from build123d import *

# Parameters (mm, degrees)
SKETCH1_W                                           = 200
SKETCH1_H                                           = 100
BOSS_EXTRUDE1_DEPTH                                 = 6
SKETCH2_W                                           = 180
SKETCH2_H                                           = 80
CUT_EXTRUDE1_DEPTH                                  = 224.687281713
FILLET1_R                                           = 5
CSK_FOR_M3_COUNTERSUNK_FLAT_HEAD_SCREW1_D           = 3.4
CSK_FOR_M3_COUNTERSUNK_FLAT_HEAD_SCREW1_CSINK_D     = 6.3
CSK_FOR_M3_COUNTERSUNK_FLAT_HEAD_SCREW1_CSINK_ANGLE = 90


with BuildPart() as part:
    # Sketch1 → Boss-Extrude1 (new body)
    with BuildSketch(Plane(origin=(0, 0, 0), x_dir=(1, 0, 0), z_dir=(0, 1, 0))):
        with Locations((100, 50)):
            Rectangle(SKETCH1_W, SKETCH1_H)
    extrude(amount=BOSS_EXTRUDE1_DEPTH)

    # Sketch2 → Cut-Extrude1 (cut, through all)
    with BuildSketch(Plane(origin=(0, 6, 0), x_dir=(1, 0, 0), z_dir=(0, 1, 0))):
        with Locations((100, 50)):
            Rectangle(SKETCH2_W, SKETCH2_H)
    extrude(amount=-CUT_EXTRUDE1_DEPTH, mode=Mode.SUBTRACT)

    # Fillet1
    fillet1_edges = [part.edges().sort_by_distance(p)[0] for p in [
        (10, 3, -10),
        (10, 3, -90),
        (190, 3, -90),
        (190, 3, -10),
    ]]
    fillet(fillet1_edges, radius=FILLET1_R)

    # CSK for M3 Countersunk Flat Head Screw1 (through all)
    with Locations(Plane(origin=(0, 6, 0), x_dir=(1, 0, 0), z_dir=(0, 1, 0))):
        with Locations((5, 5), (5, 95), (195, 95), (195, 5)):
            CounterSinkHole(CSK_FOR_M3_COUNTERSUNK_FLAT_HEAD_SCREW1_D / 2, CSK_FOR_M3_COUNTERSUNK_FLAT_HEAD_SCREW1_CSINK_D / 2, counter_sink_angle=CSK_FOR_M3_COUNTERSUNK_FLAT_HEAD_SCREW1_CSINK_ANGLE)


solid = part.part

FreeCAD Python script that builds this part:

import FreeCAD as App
import Part
import Sketcher

V = App.Vector


def edges_at(feature, points):
    """Names of the edges that pass closest to the given points."""
    edges = feature.Shape.Edges
    near = lambda p: min(range(len(edges)), key=lambda i: edges[i].distToShape(Part.Vertex(*p))[0])
    return sorted({f"Edge{near(p) + 1}" for p in points})

doc = App.newDocument("Part")
body = doc.addObject("PartDesign::Body", "Body")

# Sketch on XZ plane
sketch1 = body.newObject("Sketcher::SketchObject", "Sketch")
sketch1.AttachmentSupport = (doc.getObject("XZ_Plane"), [""])
sketch1.MapMode = "FlatFace"
sketch1.addGeometry([
    Part.LineSegment(V(0, -100, 0), V(0, 0, 0)),
    Part.LineSegment(V(0, 0, 0), V(200, 0, 0)),
    Part.LineSegment(V(200, 0, 0), V(200, -100, 0)),
    Part.LineSegment(V(200, -100, 0), V(0, -100, 0)),
], False)
sketch1.addConstraint([
    Sketcher.Constraint("Coincident", 0, 2, 1, 1),
    Sketcher.Constraint("Coincident", 1, 2, 2, 1),
    Sketcher.Constraint("Coincident", 2, 2, 3, 1),
    Sketcher.Constraint("Coincident", 3, 2, 0, 1),
    Sketcher.Constraint("Vertical", 0),
    Sketcher.Constraint("Horizontal", 1),
    Sketcher.Constraint("Vertical", 2),
    Sketcher.Constraint("Horizontal", 3),
    Sketcher.Constraint("Coincident", 0, 2, -1, 1),
    Sketcher.Constraint("DistanceX", 1, 1, 1, 2, 200.0),
    Sketcher.Constraint("DistanceY", 0, 1, 0, 2, 100.0),
])
pad1 = body.newObject("PartDesign::Pad", "Pad")
pad1.Profile = sketch1
pad1.Length = 6
pad1.Reversed = True

# Sketch on XZ plane
sketch2 = body.newObject("Sketcher::SketchObject", "Sketch001")
sketch2.AttachmentSupport = (doc.getObject("XZ_Plane"), [""])
sketch2.MapMode = "FlatFace"
sketch2.AttachmentOffset = App.Placement(V(0, 0, -6), App.Rotation())
sketch2.addGeometry([
    Part.LineSegment(V(10, -90, 0), V(10, -10, 0)),
    Part.LineSegment(V(10, -10, 0), V(190, -10, 0)),
    Part.LineSegment(V(190, -10, 0), V(190, -90, 0)),
    Part.LineSegment(V(190, -90, 0), V(10, -90, 0)),
], False)
sketch2.addConstraint([
    Sketcher.Constraint("Coincident", 0, 2, 1, 1),
    Sketcher.Constraint("Coincident", 1, 2, 2, 1),
    Sketcher.Constraint("Coincident", 2, 2, 3, 1),
    Sketcher.Constraint("Coincident", 3, 2, 0, 1),
    Sketcher.Constraint("Vertical", 0),
    Sketcher.Constraint("Horizontal", 1),
    Sketcher.Constraint("Vertical", 2),
    Sketcher.Constraint("Horizontal", 3),
    Sketcher.Constraint("DistanceX", 1, 1, 1, 2, 180.0),
    Sketcher.Constraint("DistanceY", 0, 1, 0, 2, 80.0),
    Sketcher.Constraint("DistanceX", -1, 1, 0, 2, 10.0),
    Sketcher.Constraint("DistanceY", 0, 2, -1, 1, 10.0),
])
pocket1 = body.newObject("PartDesign::Pocket", "Pocket")
pocket1.Profile = sketch2
pocket1.Type = "ThroughAll"
pocket1.Reversed = True
doc.recompute()

fillet = body.newObject("PartDesign::Fillet", "Fillet")
fillet.Base = (pocket1, edges_at(pocket1, [
    (10, 3, -10),
    (10, 3, -90),
    (190, 3, -90),
    (190, 3, -10),
]))
fillet.Radius = 5

# Sketch on XZ plane
sketch3 = body.newObject("Sketcher::SketchObject", "Sketch002")
sketch3.AttachmentSupport = (doc.getObject("XZ_Plane"), [""])
sketch3.MapMode = "FlatFace"
sketch3.AttachmentOffset = App.Placement(V(0, 0, -6), App.Rotation())
sketch3.addGeometry([
    Part.Circle(V(5, -5, 0), V(0, 0, 1), 1.7),
    Part.Circle(V(5, -95, 0), V(0, 0, 1), 1.7),
    Part.Circle(V(195, -95, 0), V(0, 0, 1), 1.7),
    Part.Circle(V(195, -5, 0), V(0, 0, 1), 1.7),
], False)
sketch3.addConstraint([
    Sketcher.Constraint("Equal", 0, 1),
    Sketcher.Constraint("Equal", 1, 2),
    Sketcher.Constraint("Equal", 2, 3),
    Sketcher.Constraint("Horizontal", 1, 3, 2, 3),
    Sketcher.Constraint("Horizontal", 0, 3, 3, 3),
    Sketcher.Constraint("Vertical", 0, 3, 1, 3),
    Sketcher.Constraint("Vertical", 2, 3, 3, 3),
    Sketcher.Constraint("Diameter", 0, 3.4),
    Sketcher.Constraint("DistanceX", -1, 1, 0, 3, 5.0),
    Sketcher.Constraint("DistanceY", 0, 3, -1, 1, 5.0),
    Sketcher.Constraint("DistanceY", 1, 3, -1, 1, 95.0),
    Sketcher.Constraint("DistanceX", -1, 1, 2, 3, 195.0),
])
doc.recompute()
hole = body.newObject("PartDesign::Hole", "Hole")
hole.Profile = sketch3
hole.ThreadType = "None"
hole.Diameter = 3.4
hole.DepthType = "ThroughAll"
hole.HoleCutType = "Countersink"
hole.HoleCutDiameter = 6.3
hole.HoleCutCountersinkAngle = 90
hole.Reversed = True

doc.recompute()
